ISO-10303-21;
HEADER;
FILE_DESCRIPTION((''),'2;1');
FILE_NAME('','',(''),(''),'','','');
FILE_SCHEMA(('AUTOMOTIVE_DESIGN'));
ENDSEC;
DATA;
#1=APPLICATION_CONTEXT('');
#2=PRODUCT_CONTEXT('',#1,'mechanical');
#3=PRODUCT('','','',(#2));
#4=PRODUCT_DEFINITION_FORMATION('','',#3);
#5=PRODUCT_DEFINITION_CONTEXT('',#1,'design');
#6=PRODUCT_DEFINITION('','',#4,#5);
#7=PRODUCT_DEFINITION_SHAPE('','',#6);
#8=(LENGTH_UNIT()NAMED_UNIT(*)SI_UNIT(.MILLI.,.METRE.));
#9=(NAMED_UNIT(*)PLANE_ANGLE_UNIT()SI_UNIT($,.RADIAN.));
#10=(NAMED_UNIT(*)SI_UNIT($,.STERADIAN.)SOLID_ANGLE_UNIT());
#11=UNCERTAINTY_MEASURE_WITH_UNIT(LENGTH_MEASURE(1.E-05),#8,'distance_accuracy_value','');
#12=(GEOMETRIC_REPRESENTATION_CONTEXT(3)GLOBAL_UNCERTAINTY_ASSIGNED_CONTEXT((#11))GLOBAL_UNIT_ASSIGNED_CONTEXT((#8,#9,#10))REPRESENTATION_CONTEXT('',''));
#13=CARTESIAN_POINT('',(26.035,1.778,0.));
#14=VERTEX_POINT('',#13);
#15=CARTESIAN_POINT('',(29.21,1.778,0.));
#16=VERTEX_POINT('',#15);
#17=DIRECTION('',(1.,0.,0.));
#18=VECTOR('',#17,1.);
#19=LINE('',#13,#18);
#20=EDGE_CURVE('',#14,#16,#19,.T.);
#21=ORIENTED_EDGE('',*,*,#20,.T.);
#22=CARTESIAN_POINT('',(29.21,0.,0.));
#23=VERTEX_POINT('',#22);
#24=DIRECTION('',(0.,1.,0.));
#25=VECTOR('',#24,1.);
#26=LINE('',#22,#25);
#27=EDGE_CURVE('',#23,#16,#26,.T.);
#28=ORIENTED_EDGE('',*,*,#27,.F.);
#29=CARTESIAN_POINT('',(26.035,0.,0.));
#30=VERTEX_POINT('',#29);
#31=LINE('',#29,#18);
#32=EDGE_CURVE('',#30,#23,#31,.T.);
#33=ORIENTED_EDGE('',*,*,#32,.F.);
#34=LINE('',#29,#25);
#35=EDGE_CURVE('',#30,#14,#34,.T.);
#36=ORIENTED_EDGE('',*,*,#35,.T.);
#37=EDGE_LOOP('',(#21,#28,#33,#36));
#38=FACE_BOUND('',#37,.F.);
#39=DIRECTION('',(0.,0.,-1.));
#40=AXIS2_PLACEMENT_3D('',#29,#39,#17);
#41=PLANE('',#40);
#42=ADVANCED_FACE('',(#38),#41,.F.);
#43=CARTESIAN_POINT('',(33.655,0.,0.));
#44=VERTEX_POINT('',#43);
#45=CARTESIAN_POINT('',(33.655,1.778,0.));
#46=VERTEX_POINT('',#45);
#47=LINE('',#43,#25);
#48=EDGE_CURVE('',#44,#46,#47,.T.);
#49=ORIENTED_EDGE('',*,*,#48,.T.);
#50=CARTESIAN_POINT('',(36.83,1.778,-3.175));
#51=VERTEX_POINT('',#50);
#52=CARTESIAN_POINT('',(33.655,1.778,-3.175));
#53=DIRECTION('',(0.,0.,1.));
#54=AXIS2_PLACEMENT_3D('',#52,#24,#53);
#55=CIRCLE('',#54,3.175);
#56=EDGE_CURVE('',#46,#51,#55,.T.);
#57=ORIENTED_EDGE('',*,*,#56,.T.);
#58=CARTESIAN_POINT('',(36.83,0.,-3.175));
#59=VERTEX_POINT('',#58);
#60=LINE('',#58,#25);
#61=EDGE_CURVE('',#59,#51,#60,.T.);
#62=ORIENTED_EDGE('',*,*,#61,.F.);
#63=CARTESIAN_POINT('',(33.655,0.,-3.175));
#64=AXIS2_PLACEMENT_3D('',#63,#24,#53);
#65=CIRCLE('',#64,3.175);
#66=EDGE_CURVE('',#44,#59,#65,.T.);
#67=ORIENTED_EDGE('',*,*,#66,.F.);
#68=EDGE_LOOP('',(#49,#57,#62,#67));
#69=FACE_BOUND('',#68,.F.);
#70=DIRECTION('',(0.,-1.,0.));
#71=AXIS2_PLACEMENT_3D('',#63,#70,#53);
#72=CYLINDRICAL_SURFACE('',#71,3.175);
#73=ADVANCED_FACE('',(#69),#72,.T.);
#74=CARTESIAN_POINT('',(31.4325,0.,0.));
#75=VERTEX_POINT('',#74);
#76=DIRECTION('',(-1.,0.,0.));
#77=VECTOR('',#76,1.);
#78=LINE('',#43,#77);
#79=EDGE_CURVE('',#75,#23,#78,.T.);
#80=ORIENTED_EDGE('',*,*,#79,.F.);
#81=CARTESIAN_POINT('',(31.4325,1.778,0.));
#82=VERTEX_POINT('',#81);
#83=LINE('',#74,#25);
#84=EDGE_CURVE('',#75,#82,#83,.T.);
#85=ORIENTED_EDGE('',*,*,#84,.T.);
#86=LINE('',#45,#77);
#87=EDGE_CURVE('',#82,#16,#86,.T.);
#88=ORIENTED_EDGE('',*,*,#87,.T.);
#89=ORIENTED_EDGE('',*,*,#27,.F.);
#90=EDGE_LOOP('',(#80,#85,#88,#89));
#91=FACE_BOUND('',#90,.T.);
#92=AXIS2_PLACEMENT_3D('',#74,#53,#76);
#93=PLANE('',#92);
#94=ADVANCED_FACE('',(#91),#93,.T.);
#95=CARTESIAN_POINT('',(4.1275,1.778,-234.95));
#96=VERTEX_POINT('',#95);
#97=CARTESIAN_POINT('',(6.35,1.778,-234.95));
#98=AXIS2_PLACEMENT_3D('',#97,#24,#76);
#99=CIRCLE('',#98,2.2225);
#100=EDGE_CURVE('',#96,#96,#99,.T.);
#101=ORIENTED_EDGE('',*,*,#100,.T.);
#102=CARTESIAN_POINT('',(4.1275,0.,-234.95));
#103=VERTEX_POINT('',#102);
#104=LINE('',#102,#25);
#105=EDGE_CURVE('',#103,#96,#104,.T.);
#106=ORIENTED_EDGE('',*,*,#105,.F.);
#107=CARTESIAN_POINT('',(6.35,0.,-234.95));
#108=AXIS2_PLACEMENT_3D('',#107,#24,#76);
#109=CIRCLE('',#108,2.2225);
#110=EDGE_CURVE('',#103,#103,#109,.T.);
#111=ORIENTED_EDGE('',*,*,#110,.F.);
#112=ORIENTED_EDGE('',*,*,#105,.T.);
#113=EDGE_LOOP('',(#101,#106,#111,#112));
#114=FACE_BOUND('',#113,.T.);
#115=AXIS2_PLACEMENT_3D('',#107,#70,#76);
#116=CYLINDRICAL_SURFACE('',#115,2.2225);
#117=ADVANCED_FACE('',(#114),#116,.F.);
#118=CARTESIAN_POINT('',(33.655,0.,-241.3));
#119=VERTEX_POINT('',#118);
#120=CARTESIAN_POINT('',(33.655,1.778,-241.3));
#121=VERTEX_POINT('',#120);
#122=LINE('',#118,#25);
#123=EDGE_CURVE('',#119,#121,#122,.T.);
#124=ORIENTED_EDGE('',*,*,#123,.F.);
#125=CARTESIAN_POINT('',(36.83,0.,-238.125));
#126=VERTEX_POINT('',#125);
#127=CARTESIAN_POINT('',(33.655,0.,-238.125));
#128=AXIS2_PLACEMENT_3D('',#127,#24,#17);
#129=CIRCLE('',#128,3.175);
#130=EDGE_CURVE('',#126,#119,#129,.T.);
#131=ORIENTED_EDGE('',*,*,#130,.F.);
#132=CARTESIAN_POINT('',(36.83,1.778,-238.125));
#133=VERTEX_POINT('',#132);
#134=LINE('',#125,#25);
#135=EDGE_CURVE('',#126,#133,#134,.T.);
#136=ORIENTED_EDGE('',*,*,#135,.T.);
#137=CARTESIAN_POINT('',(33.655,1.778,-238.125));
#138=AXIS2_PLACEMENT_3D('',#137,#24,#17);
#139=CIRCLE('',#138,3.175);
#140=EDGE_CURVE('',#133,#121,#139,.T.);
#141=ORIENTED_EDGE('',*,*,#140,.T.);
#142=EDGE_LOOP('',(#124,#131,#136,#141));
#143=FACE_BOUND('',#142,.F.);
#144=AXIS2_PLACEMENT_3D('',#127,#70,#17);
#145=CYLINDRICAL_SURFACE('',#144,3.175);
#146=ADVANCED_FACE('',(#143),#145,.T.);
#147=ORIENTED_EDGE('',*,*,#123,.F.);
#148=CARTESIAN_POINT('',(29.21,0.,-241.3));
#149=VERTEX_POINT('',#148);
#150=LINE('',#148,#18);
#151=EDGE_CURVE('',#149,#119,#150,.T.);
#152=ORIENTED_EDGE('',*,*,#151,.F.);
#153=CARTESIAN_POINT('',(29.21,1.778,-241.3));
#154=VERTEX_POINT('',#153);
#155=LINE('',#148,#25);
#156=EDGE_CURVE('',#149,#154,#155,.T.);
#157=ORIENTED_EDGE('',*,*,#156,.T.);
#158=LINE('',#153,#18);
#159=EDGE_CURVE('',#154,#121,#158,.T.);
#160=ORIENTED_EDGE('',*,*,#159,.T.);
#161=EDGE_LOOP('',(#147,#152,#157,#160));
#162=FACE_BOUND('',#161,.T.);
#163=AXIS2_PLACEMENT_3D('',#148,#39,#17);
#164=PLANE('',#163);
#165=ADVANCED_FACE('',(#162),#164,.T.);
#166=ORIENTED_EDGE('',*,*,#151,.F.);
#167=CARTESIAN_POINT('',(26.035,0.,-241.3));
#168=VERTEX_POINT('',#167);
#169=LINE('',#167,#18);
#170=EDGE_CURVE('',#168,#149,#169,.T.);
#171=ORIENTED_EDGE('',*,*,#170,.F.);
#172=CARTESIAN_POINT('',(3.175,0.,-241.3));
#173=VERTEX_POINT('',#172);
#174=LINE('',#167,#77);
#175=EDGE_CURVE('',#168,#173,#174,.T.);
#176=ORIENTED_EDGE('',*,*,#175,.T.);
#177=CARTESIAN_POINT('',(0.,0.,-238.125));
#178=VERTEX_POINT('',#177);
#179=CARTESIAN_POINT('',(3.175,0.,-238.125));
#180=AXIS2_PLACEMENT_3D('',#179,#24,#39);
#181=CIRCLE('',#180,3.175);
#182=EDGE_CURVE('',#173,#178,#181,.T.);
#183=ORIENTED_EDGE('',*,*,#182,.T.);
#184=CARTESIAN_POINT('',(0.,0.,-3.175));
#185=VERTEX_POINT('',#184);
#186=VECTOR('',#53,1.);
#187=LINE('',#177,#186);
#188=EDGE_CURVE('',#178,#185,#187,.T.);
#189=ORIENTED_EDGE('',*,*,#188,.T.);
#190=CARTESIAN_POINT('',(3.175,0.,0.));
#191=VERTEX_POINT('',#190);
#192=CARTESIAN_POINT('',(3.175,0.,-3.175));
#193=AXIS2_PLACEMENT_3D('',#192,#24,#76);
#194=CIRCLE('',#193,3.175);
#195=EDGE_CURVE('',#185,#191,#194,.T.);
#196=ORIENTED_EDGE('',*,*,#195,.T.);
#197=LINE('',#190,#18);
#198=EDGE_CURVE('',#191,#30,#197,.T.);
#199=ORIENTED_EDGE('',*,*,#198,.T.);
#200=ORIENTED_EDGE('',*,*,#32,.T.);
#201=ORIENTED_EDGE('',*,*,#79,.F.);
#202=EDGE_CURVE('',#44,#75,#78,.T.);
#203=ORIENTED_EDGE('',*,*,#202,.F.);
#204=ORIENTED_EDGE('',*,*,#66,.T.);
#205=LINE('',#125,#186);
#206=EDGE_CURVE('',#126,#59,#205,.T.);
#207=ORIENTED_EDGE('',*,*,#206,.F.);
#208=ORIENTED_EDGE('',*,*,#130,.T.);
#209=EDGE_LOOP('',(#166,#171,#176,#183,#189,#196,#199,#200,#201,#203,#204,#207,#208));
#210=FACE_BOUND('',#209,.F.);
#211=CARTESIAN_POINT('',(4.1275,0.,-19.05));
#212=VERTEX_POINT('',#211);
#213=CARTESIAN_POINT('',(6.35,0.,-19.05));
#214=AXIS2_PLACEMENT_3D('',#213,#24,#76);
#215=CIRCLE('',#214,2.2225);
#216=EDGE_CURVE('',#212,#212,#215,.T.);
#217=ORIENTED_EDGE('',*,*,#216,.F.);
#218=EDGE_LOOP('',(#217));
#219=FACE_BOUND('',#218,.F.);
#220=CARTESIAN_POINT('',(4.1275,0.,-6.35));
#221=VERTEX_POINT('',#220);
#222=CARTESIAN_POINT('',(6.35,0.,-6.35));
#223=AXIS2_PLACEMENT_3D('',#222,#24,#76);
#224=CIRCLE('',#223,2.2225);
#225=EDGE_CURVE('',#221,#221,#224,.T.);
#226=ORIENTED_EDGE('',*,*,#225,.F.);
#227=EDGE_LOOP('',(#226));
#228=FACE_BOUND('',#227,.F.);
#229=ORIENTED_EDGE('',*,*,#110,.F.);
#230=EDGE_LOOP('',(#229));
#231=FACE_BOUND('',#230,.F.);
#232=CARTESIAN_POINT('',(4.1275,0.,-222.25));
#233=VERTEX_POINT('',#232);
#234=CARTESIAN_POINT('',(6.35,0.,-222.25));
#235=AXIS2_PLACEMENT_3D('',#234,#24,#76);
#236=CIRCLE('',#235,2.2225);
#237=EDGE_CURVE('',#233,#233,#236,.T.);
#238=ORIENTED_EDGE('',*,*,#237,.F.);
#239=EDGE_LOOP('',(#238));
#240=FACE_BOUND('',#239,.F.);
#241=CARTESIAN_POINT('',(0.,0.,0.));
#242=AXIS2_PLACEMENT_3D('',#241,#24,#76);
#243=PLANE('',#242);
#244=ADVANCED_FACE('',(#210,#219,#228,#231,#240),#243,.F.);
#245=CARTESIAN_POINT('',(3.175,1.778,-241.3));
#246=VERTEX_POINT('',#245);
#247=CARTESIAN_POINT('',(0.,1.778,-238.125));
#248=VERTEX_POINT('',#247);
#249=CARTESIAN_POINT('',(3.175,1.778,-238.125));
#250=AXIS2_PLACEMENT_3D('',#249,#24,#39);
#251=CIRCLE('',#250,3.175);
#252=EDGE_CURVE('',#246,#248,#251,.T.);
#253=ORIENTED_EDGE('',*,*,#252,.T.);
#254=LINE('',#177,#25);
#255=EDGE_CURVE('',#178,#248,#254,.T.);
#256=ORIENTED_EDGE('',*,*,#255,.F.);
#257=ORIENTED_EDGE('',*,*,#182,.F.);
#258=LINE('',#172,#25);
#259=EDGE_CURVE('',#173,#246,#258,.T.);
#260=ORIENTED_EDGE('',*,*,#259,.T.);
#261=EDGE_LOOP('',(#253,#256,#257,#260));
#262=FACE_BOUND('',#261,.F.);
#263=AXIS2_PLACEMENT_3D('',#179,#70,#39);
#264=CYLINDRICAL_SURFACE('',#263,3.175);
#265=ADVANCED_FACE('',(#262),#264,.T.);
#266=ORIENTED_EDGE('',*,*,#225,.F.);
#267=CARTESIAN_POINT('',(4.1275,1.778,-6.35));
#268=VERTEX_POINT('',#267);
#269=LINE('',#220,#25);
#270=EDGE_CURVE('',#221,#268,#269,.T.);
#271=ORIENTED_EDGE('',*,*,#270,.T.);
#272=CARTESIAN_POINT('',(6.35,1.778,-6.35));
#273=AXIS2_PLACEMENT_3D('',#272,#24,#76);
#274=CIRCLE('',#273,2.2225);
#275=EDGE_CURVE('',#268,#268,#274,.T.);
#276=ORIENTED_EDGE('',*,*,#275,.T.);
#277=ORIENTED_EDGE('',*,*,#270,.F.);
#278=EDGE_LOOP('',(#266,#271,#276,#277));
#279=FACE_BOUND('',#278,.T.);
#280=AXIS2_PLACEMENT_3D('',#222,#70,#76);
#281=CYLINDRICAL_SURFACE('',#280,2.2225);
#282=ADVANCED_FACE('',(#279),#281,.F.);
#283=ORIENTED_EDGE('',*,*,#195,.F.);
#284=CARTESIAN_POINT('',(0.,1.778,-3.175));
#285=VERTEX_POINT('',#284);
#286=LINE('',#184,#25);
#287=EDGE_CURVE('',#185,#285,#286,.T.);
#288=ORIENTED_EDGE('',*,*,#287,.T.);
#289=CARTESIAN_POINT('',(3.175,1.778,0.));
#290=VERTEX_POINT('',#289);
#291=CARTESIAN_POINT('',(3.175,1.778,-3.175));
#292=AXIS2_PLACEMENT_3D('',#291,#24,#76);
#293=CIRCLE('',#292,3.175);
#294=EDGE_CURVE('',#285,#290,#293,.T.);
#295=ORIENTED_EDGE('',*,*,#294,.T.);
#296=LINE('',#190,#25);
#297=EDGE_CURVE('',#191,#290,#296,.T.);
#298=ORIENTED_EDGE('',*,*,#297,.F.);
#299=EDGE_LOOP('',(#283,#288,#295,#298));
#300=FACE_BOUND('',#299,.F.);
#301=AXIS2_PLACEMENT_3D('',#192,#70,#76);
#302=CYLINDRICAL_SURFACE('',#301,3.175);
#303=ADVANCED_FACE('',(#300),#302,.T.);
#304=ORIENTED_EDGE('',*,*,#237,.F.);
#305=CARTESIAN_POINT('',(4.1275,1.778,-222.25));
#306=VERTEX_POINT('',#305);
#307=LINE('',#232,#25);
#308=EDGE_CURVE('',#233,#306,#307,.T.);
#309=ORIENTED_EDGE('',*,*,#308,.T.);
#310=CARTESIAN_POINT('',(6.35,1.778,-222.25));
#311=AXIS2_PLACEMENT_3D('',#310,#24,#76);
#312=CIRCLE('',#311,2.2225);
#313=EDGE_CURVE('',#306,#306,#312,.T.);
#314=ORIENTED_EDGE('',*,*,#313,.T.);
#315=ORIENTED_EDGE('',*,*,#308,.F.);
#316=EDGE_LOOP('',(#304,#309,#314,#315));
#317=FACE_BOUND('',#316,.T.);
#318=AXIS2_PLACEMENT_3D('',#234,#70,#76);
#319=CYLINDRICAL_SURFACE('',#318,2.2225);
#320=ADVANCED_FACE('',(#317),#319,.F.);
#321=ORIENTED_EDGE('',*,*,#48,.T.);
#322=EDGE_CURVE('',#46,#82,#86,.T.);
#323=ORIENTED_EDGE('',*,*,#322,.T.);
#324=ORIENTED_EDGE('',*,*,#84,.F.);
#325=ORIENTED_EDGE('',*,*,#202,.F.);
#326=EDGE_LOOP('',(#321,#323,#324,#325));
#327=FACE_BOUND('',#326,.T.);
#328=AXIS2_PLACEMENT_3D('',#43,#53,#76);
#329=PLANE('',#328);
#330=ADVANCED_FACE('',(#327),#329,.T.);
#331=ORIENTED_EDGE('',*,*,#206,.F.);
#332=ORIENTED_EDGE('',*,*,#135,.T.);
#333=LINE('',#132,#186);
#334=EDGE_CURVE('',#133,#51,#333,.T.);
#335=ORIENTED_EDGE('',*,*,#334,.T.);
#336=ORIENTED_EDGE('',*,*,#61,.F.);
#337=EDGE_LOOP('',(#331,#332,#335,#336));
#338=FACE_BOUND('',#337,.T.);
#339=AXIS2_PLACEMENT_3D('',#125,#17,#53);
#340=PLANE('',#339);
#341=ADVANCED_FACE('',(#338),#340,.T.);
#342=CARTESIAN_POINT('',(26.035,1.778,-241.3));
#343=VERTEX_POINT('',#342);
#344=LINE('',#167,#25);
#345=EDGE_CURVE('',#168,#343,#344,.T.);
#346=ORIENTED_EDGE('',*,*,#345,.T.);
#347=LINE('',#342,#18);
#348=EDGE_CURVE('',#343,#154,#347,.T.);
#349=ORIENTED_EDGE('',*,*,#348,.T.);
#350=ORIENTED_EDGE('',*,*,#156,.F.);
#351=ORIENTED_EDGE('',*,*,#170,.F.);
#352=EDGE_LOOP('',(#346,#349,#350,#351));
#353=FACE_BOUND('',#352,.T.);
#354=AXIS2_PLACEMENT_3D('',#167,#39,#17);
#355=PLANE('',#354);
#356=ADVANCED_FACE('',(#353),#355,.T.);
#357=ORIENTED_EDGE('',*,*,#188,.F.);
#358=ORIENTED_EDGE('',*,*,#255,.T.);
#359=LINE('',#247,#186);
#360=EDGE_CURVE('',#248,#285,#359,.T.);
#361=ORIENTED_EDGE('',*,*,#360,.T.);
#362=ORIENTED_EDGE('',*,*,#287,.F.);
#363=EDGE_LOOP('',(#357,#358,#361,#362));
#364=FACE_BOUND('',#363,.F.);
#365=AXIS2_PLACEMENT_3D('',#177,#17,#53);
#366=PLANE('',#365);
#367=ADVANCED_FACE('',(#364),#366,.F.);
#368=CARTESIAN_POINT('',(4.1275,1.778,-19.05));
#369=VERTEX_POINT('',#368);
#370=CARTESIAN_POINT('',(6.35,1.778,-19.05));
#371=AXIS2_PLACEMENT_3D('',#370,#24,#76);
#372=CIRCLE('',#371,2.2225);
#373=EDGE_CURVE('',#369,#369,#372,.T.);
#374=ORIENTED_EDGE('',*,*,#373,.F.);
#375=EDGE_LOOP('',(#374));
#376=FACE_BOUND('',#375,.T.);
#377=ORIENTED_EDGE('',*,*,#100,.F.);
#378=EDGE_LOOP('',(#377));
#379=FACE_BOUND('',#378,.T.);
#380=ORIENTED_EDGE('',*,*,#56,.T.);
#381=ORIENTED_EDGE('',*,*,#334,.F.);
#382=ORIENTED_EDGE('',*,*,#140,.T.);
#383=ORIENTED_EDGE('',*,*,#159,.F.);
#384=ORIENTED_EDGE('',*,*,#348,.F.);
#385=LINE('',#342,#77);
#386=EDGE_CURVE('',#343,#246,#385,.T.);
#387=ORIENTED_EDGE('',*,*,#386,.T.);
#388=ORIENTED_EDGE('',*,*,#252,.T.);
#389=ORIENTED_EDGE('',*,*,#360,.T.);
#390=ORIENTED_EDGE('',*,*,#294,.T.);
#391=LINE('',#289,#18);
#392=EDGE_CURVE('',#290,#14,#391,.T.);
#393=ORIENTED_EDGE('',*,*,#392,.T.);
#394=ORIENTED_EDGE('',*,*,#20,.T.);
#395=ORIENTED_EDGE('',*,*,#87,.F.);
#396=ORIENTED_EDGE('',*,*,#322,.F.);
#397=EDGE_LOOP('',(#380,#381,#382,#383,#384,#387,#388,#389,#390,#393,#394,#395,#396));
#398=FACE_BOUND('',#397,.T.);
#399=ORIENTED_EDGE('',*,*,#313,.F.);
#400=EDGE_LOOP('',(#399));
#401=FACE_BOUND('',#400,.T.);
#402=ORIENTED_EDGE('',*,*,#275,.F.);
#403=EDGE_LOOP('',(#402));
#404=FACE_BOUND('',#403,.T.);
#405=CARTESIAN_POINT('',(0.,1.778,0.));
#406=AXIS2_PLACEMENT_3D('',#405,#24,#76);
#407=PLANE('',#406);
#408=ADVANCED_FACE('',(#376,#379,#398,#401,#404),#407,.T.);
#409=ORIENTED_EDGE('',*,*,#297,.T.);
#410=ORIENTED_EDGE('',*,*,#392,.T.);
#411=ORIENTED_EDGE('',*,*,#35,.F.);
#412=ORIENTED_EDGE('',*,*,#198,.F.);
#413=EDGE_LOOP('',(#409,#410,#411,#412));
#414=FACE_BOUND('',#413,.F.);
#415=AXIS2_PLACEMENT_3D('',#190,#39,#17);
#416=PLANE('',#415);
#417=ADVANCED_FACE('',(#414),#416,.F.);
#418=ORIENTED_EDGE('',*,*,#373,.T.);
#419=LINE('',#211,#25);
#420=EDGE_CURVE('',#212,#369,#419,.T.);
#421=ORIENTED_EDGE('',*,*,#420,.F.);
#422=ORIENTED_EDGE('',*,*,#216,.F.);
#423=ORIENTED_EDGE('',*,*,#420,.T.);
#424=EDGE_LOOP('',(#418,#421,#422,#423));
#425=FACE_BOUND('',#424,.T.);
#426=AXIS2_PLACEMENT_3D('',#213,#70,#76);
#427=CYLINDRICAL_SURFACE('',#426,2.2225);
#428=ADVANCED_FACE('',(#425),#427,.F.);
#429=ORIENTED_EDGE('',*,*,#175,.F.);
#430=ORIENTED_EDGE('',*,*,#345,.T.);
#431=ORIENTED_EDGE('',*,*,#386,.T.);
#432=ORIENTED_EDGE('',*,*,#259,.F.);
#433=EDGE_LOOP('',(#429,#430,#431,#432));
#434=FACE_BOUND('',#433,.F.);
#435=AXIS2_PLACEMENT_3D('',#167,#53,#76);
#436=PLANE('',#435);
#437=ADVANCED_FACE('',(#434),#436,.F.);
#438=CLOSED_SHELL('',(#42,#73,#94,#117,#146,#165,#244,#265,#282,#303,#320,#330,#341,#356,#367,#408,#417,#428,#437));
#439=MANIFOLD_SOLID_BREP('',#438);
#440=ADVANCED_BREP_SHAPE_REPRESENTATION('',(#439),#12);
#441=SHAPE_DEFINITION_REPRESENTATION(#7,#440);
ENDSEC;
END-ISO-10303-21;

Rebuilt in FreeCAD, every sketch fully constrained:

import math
import FreeCAD as App
import Part
import Sketcher
Q = App.Units.Quantity

doc = App.newDocument("Part")
params = doc.addObject("Spreadsheet::Sheet", "Params")
for row, (alias, value) in enumerate([
    ("sketch1_diameter", "0.175 in"),
    ("sketch1_radius", "0.125 in"),
    ("sketch1_width", "1.2 in"),
    ("pad1_length", "0.07 in"),
], start=1):
    params.set(f"A{row}", alias)
    params.set(f"B{row}", "=" + value)
    params.setAlias(f"B{row}", alias)

body = doc.addObject("PartDesign::Body", "Body")

# Sketch on XZ plane
sketch1 = body.newObject("Sketcher::SketchObject", "Sketch")
sketch1.AttachmentSupport = (doc.getObject("XZ_Plane"), [""])
sketch1.MapMode = "FlatFace"
sketch1.addGeometry([
    Part.ArcOfCircle(Part.Circle(App.Vector(3.2, -3.2, 0), App.Vector(0, 0, 1), 3.2), math.radians(90), math.radians(180)),  # 0
    Part.LineSegment(App.Vector(3.2, 0, 0), App.Vector(33.7, 0, 0)),  # 1
    Part.ArcOfCircle(Part.Circle(App.Vector(33.7, -3.2, 0), App.Vector(0, 0, 1), 3.2), math.radians(0), math.radians(90)),  # 2
    Part.LineSegment(App.Vector(36.8, -3.2, 0), App.Vector(36.8, -238.1, 0)),  # 3
    Part.ArcOfCircle(Part.Circle(App.Vector(33.7, -238.1, 0), App.Vector(0, 0, 1), 3.2), math.radians(-90), math.radians(0)),  # 4
    Part.LineSegment(App.Vector(33.7, -241.3, 0), App.Vector(3.2, -241.3, 0)),  # 5
    Part.ArcOfCircle(Part.Circle(App.Vector(3.2, -238.1, 0), App.Vector(0, 0, 1), 3.2), math.radians(180), math.radians(270)),  # 6
    Part.LineSegment(App.Vector(0, -238.1, 0), App.Vector(0, -3.2, 0)),  # 7
    Part.Circle(App.Vector(6.3, -234.9, 0), App.Vector(0, 0, 1), 2.2),  # 8
    Part.Circle(App.Vector(6.3, -222.2, 0), App.Vector(0, 0, 1), 2.2),  # 9
    Part.Circle(App.Vector(6.3, -19.1, 0), App.Vector(0, 0, 1), 2.2),  # 10
    Part.Circle(App.Vector(6.3, -6.3, 0), App.Vector(0, 0, 1), 2.2),  # 11
], False)
sketch1.addConstraint([
    Sketcher.Constraint("Tangent", 0, 1, 1, 1),
    Sketcher.Constraint("Tangent", 1, 2, 2, 2),
    Sketcher.Constraint("Tangent", 2, 1, 3, 1),
    Sketcher.Constraint("Tangent", 3, 2, 4, 2),
    Sketcher.Constraint("Tangent", 4, 1, 5, 1),
    Sketcher.Constraint("Tangent", 5, 2, 6, 2),
    Sketcher.Constraint("Tangent", 6, 1, 7, 1),
    Sketcher.Constraint("Tangent", 7, 2, 0, 2),
    Sketcher.Constraint("Horizontal", 1),
    Sketcher.Constraint("Vertical", 3),
    Sketcher.Constraint("Horizontal", 5),
    Sketcher.Constraint("Vertical", 7),
    Sketcher.Constraint("Equal", 0, 2),
    Sketcher.Constraint("Equal", 2, 4),
    Sketcher.Constraint("Equal", 4, 6),
    Sketcher.Constraint("Equal", 8, 9),
    Sketcher.Constraint("Equal", 9, 10),
    Sketcher.Constraint("Equal", 10, 11),
    Sketcher.Constraint("PointOnObject", 0, 1, -1),
    Sketcher.Constraint("PointOnObject", 6, 1, -2),
    Sketcher.Constraint("Vertical", 8, 3, 9, 3),
    Sketcher.Constraint("Vertical", 9, 3, 10, 3),
    Sketcher.Constraint("Vertical", 10, 3, 11, 3),
    Sketcher.Constraint("Diameter", 8, Q("0.175 in")),
    Sketcher.Constraint("Radius", 0, Q("0.125 in")),
    Sketcher.Constraint("DistanceX", 1, 1, 1, 2, Q("1.2 in")),
    Sketcher.Constraint("DistanceX", 6, 3, 8, 3, Q("0.125 in")),
    Sketcher.Constraint("DistanceY", 6, 3, 8, 3, Q("0.125 in")),
    Sketcher.Constraint("DistanceY", 9, 3, 10, 3, Q("8 in")),
    Sketcher.Constraint("DistanceY", 11, 3, 0, 3, Q("0.125 in")),
    Sketcher.Constraint("DistanceY", 8, 3, 11, 3, Q("9 in")),
    Sketcher.Constraint("DistanceY", 8, 3, 9, 3, Q("0.5 in")),
])
sketch1.setExpression("Constraints[23]", "Params.sketch1_diameter")
sketch1.setExpression("Constraints[24]", "Params.sketch1_radius")
sketch1.setExpression("Constraints[25]", "Params.sketch1_width")
pad1 = body.newObject("PartDesign::Pad", "Pad")
pad1.Profile = sketch1
pad1.setExpression("Length", "Params.pad1_length")
pad1.Reversed = True

doc.recompute()
